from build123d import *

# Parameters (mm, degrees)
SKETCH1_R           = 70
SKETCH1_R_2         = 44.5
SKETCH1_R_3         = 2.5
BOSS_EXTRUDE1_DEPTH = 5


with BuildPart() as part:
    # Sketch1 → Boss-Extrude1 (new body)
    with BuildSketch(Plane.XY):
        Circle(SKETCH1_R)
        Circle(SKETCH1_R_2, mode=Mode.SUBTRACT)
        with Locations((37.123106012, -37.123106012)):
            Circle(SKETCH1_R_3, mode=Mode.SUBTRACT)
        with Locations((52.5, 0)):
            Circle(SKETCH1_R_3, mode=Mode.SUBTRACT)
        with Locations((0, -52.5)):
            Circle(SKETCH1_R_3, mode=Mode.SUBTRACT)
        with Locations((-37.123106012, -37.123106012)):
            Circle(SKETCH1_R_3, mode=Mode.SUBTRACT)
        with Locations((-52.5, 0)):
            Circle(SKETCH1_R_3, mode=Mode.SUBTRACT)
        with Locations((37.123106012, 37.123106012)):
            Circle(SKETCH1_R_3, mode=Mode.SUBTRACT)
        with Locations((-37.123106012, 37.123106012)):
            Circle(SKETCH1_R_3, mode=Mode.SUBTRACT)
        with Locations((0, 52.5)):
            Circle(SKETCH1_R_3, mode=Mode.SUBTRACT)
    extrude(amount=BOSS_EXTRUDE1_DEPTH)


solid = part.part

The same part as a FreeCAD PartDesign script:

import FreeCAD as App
import Part
import Sketcher
from FreeCAD import Vector
Q = App.Units.Quantity

doc = App.newDocument("Part")
body = doc.addObject("PartDesign::Body", "Body")

# Sketch on XY plane
sketch1 = body.newObject("Sketcher::SketchObject", "Sketch")
sketch1.AttachmentSupport = (doc.getObject("XY_Plane"), [""])
sketch1.MapMode = "FlatFace"
sketch1.addGeometry([
    Part.Circle(Vector(0, 0, 0), Vector(0, 0, 1), 70),  # 0
    Part.Circle(Vector(-37.123106, -37.123106, 0), Vector(0, 0, 1), 2.5),  # 1
    Part.Circle(Vector(0, -52.5, 0), Vector(0, 0, 1), 2.5),  # 2
    Part.Circle(Vector(37.123106, -37.123106, 0), Vector(0, 0, 1), 2.5),  # 3
    Part.Circle(Vector(-52.5, 0, 0), Vector(0, 0, 1), 2.5),  # 4
    Part.Circle(Vector(-37.123106, 37.123106, 0), Vector(0, 0, 1), 2.5),  # 5
    Part.Circle(Vector(0, 0, 0), Vector(0, 0, 1), 44.5),  # 6
    Part.Circle(Vector(52.5, 0, 0), Vector(0, 0, 1), 2.5),  # 7
    Part.Circle(Vector(0, 52.5, 0), Vector(0, 0, 1), 2.5),  # 8
    Part.Circle(Vector(37.123106, 37.123106, 0), Vector(0, 0, 1), 2.5),  # 9
], False)
sketch1.addConstraint([
    Sketcher.Constraint("Coincident", 0, 3, -1, 1),
    Sketcher.Constraint("Coincident", 6, 3, -1, 1),
    Sketcher.Constraint("Equal", 1, 2),
    Sketcher.Constraint("Equal", 2, 3),
    Sketcher.Constraint("Equal", 3, 4),
    Sketcher.Constraint("Equal", 4, 5),
    Sketcher.Constraint("Equal", 5, 7),
    Sketcher.Constraint("Equal", 7, 8),
    Sketcher.Constraint("Equal", 8, 9),
    Sketcher.Constraint("Symmetric", 3, 3, 5, 3, -1, 1),
    Sketcher.Constraint("Symmetric", 4, 3, 7, 3, -1, 1),
    Sketcher.Constraint("Symmetric", 2, 3, 8, 3, -1, 1),
    Sketcher.Constraint("Symmetric", 1, 3, 9, 3, -1, 1),
    Sketcher.Constraint("Symmetric", 1, 3, 3, 3, -2),
    Sketcher.Constraint("PointOnObject", 2, 3, -2),
    Sketcher.Constraint("PointOnObject", 4, 3, -1),
    Sketcher.Constraint("Diameter", 0, Q("140 mm")),
    Sketcher.Constraint("Diameter", 1, Q("5 mm")),
    Sketcher.Constraint("Diameter", 6, Q("89 mm")),
    Sketcher.Constraint("DistanceY", 2, 3, -1, 1, Q("52.5 mm")),
    Sketcher.Constraint("DistanceX", 4, 3, -1, 1, Q("52.5 mm")),
    Sketcher.Constraint("DistanceX", 1, 3, -1, 1, Q("37.123106 mm")),
    Sketcher.Constraint("DistanceY", 1, 3, -1, 1, Q("37.123106 mm")),
])
pad1 = body.newObject("PartDesign::Pad", "Pad")
pad1.Profile = sketch1
pad1.Length = 5

doc.recompute()
